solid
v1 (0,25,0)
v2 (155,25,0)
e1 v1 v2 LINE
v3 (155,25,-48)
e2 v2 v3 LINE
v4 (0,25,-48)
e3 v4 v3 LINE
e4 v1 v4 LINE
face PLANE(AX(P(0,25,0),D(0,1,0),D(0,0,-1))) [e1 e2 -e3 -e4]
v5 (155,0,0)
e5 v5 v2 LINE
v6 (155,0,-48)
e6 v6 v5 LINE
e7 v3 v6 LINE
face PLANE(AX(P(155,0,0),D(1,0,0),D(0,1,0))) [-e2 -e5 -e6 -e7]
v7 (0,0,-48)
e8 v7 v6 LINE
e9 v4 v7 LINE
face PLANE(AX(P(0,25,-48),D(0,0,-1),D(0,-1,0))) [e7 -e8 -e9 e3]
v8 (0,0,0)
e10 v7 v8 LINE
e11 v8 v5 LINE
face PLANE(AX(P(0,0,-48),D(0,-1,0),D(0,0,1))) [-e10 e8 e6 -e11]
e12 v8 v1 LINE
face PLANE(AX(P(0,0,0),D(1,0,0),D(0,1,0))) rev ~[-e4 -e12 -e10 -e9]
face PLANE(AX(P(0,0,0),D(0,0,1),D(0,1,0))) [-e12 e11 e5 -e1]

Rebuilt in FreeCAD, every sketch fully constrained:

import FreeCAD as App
import Part
import Sketcher
Q = App.Units.Quantity


def add_polygon(sketch, points):
    """Adds a closed chain of lines whose ends are joined by coincident constraints."""
    first, n = sketch.GeometryCount, len(points)
    for a, b in zip(points, points[1:] + points[:1]):
        sketch.addGeometry(Part.LineSegment(App.Vector(*a, 0), App.Vector(*b, 0)), False)
    for i in range(n):
        sketch.addConstraint(Sketcher.Constraint("Coincident", first + i, 2, first + (i + 1) % n, 1))

doc = App.newDocument("Part")
body = doc.addObject("PartDesign::Body", "Body")

sketch1 = body.newObject("Sketcher::SketchObject", "Sketch")
sketch1.AttachmentSupport = (doc.getObject("YZ_Plane"), [""])
sketch1.MapMode = "FlatFace"
add_polygon(sketch1, [(25, 0), (0, 0), (0, -48), (25, -48)])
sketch1.addConstraint(Sketcher.Constraint("Horizontal", 0))
sketch1.addConstraint(Sketcher.Constraint("Vertical", 1))
sketch1.addConstraint(Sketcher.Constraint("Horizontal", 2))
sketch1.addConstraint(Sketcher.Constraint("Vertical", 3))
sketch1.addConstraint(Sketcher.Constraint("Coincident", 0, 2, -1, 1))
sketch1.addConstraint(Sketcher.Constraint("DistanceX", 0, 2, 0, 1, Q("25 mm")))
sketch1.addConstraint(Sketcher.Constraint("DistanceY", 1, 2, 1, 1, Q("48 mm")))
pad1 = body.newObject("PartDesign::Pad", "Pad")
pad1.Profile = sketch1
pad1.Length = 155

doc.recompute()
